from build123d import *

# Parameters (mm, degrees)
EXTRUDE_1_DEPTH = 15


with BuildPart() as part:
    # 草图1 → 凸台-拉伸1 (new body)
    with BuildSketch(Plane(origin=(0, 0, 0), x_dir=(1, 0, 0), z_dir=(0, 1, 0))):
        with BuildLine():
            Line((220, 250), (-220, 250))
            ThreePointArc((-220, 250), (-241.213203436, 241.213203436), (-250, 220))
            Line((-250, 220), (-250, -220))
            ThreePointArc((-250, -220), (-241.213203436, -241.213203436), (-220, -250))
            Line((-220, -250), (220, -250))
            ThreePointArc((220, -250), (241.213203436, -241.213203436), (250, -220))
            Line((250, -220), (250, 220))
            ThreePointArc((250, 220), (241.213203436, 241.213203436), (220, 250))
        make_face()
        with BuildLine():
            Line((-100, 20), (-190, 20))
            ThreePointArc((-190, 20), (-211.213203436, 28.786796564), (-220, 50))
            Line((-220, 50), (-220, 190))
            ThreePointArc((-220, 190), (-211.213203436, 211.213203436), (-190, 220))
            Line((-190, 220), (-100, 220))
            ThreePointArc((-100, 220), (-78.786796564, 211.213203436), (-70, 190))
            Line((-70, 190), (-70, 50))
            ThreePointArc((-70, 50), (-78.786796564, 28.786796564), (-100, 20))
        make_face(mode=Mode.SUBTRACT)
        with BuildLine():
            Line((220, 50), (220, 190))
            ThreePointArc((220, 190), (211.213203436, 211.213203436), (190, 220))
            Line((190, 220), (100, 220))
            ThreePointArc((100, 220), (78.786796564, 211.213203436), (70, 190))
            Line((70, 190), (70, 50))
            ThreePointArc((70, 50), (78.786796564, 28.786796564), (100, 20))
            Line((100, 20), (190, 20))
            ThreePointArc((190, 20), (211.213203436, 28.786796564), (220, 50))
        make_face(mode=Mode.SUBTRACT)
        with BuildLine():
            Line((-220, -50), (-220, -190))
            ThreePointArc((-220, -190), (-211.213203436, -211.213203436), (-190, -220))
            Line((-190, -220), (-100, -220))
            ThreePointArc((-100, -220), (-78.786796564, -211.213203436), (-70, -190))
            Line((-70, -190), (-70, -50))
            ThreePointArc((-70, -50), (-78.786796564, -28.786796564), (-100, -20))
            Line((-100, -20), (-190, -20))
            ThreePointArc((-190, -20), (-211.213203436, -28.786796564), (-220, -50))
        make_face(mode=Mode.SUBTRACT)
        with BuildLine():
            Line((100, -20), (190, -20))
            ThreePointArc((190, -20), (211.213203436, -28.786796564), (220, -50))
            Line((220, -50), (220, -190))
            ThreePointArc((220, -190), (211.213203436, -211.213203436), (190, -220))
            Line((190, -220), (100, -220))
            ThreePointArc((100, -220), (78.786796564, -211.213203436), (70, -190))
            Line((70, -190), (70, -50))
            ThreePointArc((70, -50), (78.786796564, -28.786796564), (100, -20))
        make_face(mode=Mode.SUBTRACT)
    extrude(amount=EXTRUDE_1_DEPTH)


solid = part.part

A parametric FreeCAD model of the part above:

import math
import FreeCAD as App
import Part
import Sketcher
from FreeCAD import Vector

doc = App.newDocument("Part")
params = doc.addObject("Spreadsheet::Sheet", "Params")
for row, (alias, value) in enumerate([
    ("sketch1_radius", "30 mm"),
    ("sketch1_width", "440 mm"),
    ("sketch1_width2", "90 mm"),
    ("sketch1_height", "140 mm"),
    ("pad1_length", "15 mm"),
], start=1):
    params.set(f"A{row}", alias)
    params.set(f"B{row}", "=" + value)
    params.setAlias(f"B{row}", alias)

body = doc.addObject("PartDesign::Body", "Body")

# Sketch on XZ plane
sketch1 = doc.addObject("Sketcher::SketchObject", "Sketch")
body.addObject(sketch1)
sketch1.AttachmentSupport = (doc.XZ_Plane, [""])
sketch1.MapMode = "FlatFace"
sketch1.addGeometry([
    Part.LineSegment(Vector(220, -250, 0), Vector(-220, -250, 0)),  # 0
    Part.ArcOfCircle(Part.Circle(Vector(-220, -220, 0), Vector(0, 0, 1), 30), math.radians(180), math.radians(270)),  # 1
    Part.LineSegment(Vector(-250, -220, 0), Vector(-250, 220, 0)),  # 2
    Part.ArcOfCircle(Part.Circle(Vector(-220, 220, 0), Vector(0, 0, 1), 30), math.radians(90), math.radians(180)),  # 3
    Part.LineSegment(Vector(-220, 250, 0), Vector(220, 250, 0)),  # 4
    Part.ArcOfCircle(Part.Circle(Vector(220, 220, 0), Vector(0, 0, 1), 30), math.radians(0), math.radians(90)),  # 5
    Part.LineSegment(Vector(250, 220, 0), Vector(250, -220, 0)),  # 6
    Part.ArcOfCircle(Part.Circle(Vector(220, -220, 0), Vector(0, 0, 1), 30), math.radians(-90), math.radians(0)),  # 7
    Part.LineSegment(Vector(-220, 190, 0), Vector(-220, 50, 0)),  # 8
    Part.ArcOfCircle(Part.Circle(Vector(-190, 50, 0), Vector(0, 0, 1), 30), math.radians(180), math.radians(270)),  # 9
    Part.LineSegment(Vector(-190, 20, 0), Vector(-100, 20, 0)),  # 10
    Part.ArcOfCircle(Part.Circle(Vector(-100, 50, 0), Vector(0, 0, 1), 30), math.radians(-90), math.radians(0)),  # 11
    Part.LineSegment(Vector(-70, 50, 0), Vector(-70, 190, 0)),  # 12
    Part.ArcOfCircle(Part.Circle(Vector(-100, 190, 0), Vector(0, 0, 1), 30), math.radians(0), math.radians(90)),  # 13
    Part.LineSegment(Vector(-100, 220, 0), Vector(-190, 220, 0)),  # 14
    Part.ArcOfCircle(Part.Circle(Vector(-190, 190, 0), Vector(0, 0, 1), 30), math.radians(90), math.radians(180)),  # 15
    Part.ArcOfCircle(Part.Circle(Vector(100, 50, 0), Vector(0, 0, 1), 30), math.radians(180), math.radians(270)),  # 16
    Part.LineSegment(Vector(100, 20, 0), Vector(190, 20, 0)),  # 17
    Part.ArcOfCircle(Part.Circle(Vector(190, 50, 0), Vector(0, 0, 1), 30), math.radians(-90), math.radians(0)),  # 18
    Part.LineSegment(Vector(220, 50, 0), Vector(220, 190, 0)),  # 19
    Part.ArcOfCircle(Part.Circle(Vector(190, 190, 0), Vector(0, 0, 1), 30), math.radians(0), math.radians(90)),  # 20
    Part.LineSegment(Vector(190, 220, 0), Vector(100, 220, 0)),  # 21
    Part.ArcOfCircle(Part.Circle(Vector(100, 190, 0), Vector(0, 0, 1), 30), math.radians(90), math.radians(180)),  # 22
    Part.LineSegment(Vector(70, 190, 0), Vector(70, 50, 0)),  # 23
    Part.ArcOfCircle(Part.Circle(Vector(-100, -50, 0), Vector(0, 0, 1), 30), math.radians(0), math.radians(90)),  # 24
    Part.LineSegment(Vector(-100, -20, 0), Vector(-190, -20, 0)),  # 25
    Part.ArcOfCircle(Part.Circle(Vector(-190, -50, 0), Vector(0, 0, 1), 30), math.radians(90), math.radians(180)),  # 26
    Part.LineSegment(Vector(-220, -50, 0), Vector(-220, -190, 0)),  # 27
    Part.ArcOfCircle(Part.Circle(Vector(-190, -190, 0), Vector(0, 0, 1), 30), math.radians(180), math.radians(270)),  # 28
    Part.LineSegment(Vector(-190, -220, 0), Vector(-100, -220, 0)),  # 29
    Part.ArcOfCircle(Part.Circle(Vector(-100, -190, 0), Vector(0, 0, 1), 30), math.radians(-90), math.radians(0)),  # 30
    Part.LineSegment(Vector(-70, -190, 0), Vector(-70, -50, 0)),  # 31
    Part.LineSegment(Vector(220, -190, 0), Vector(220, -50, 0)),  # 32
    Part.ArcOfCircle(Part.Circle(Vector(190, -50, 0), Vector(0, 0, 1), 30), math.radians(0), math.radians(90)),  # 33
    Part.LineSegment(Vector(190, -20, 0), Vector(100, -20, 0)),  # 34
    Part.ArcOfCircle(Part.Circle(Vector(100, -50, 0), Vector(0, 0, 1), 30), math.radians(90), math.radians(180)),  # 35
    Part.LineSegment(Vector(70, -50, 0), Vector(70, -190, 0)),  # 36
    Part.ArcOfCircle(Part.Circle(Vector(100, -190, 0), Vector(0, 0, 1), 30), math.radians(180), math.radians(270)),  # 37
    Part.LineSegment(Vector(100, -220, 0), Vector(190, -220, 0)),  # 38
    Part.ArcOfCircle(Part.Circle(Vector(190, -190, 0), Vector(0, 0, 1), 30), math.radians(-90), math.radians(0)),  # 39
], False)
sketch1.addConstraint([
    Sketcher.Constraint("Tangent", 0, 2, 1, 2),
    Sketcher.Constraint("Tangent", 1, 1, 2, 1),
    Sketcher.Constraint("Tangent", 2, 2, 3, 2),
    Sketcher.Constraint("Tangent", 3, 1, 4, 1),
    Sketcher.Constraint("Tangent", 4, 2, 5, 2),
    Sketcher.Constraint("Tangent", 5, 1, 6, 1),
    Sketcher.Constraint("Tangent", 6, 2, 7, 2),
    Sketcher.Constraint("Tangent", 7, 1, 0, 1),
    Sketcher.Constraint("Tangent", 8, 2, 9, 1),
    Sketcher.Constraint("Tangent", 9, 2, 10, 1),
    Sketcher.Constraint("Tangent", 10, 2, 11, 1),
    Sketcher.Constraint("Tangent", 11, 2, 12, 1),
    Sketcher.Constraint("Tangent", 12, 2, 13, 1),
    Sketcher.Constraint("Tangent", 13, 2, 14, 1),
    Sketcher.Constraint("Tangent", 14, 2, 15, 1),
    Sketcher.Constraint("Tangent", 15, 2, 8, 1),
    Sketcher.Constraint("Tangent", 16, 2, 17, 1),
    Sketcher.Constraint("Tangent", 17, 2, 18, 1),
    Sketcher.Constraint("Tangent", 18, 2, 19, 1),
    Sketcher.Constraint("Tangent", 19, 2, 20, 1),
    Sketcher.Constraint("Tangent", 20, 2, 21, 1),
    Sketcher.Constraint("Tangent", 21, 2, 22, 1),
    Sketcher.Constraint("Tangent", 22, 2, 23, 1),
    Sketcher.Constraint("Tangent", 23, 2, 16, 1),
    Sketcher.Constraint("Tangent", 24, 2, 25, 1),
    Sketcher.Constraint("Tangent", 25, 2, 26, 1),
    Sketcher.Constraint("Tangent", 26, 2, 27, 1),
    Sketcher.Constraint("Tangent", 27, 2, 28, 1),
    Sketcher.Constraint("Tangent", 28, 2, 29, 1),
    Sketcher.Constraint("Tangent", 29, 2, 30, 1),
    Sketcher.Constraint("Tangent", 30, 2, 31, 1),
    Sketcher.Constraint("Tangent", 31, 2, 24, 1),
    Sketcher.Constraint("Tangent", 32, 2, 33, 1),
    Sketcher.Constraint("Tangent", 33, 2, 34, 1),
    Sketcher.Constraint("Tangent", 34, 2, 35, 1),
    Sketcher.Constraint("Tangent", 35, 2, 36, 1),
    Sketcher.Constraint("Tangent", 36, 2, 37, 1),
    Sketcher.Constraint("Tangent", 37, 2, 38, 1),
    Sketcher.Constraint("Tangent", 38, 2, 39, 1),
    Sketcher.Constraint("Tangent", 39, 2, 32, 1),
    Sketcher.Constraint("Horizontal", 0),
    Sketcher.Constraint("Vertical", 2),
    Sketcher.Constraint("Horizontal", 4),
    Sketcher.Constraint("Vertical", 6),
    Sketcher.Constraint("Vertical", 8),
    Sketcher.Constraint("Horizontal", 10),
    Sketcher.Constraint("Vertical", 12),
    Sketcher.Constraint("Horizontal", 14),
    Sketcher.Constraint("Horizontal", 17),
    Sketcher.Constraint("Vertical", 19),
    Sketcher.Constraint("Horizontal", 21),
    Sketcher.Constraint("Vertical", 23),
    Sketcher.Constraint("Horizontal", 25),
    Sketcher.Constraint("Vertical", 27),
    Sketcher.Constraint("Horizontal", 29),
    Sketcher.Constraint("Vertical", 31),
    Sketcher.Constraint("Vertical", 32),
    Sketcher.Constraint("Horizontal", 34),
    Sketcher.Constraint("Vertical", 36),
    Sketcher.Constraint("Horizontal", 38),
    Sketcher.Constraint("Equal", 1, 3),
    Sketcher.Constraint("Equal", 3, 5),
    Sketcher.Constraint("Equal", 5, 7),
    Sketcher.Constraint("Equal", 7, 9),
    Sketcher.Constraint("Equal", 9, 11),
    Sketcher.Constraint("Equal", 11, 13),
    Sketcher.Constraint("Equal", 13, 15),
    Sketcher.Constraint("Equal", 15, 16),
    Sketcher.Constraint("Equal", 16, 18),
    Sketcher.Constraint("Equal", 18, 20),
    Sketcher.Constraint("Equal", 20, 22),
    Sketcher.Constraint("Equal", 22, 24),
    Sketcher.Constraint("Equal", 24, 26),
    Sketcher.Constraint("Equal", 26, 28),
    Sketcher.Constraint("Equal", 28, 30),
    Sketcher.Constraint("Equal", 30, 33),
    Sketcher.Constraint("Equal", 33, 35),
    Sketcher.Constraint("Equal", 35, 37),
    Sketcher.Constraint("Equal", 37, 39),
    Sketcher.Constraint("Symmetric", 1, 3, 5, 3, -1, 1),
    Sketcher.Constraint("Symmetric", 16, 3, 24, 3, -1, 1),
    Sketcher.Constraint("Symmetric", 20, 3, 28, 3, -1, 1),
    Sketcher.Constraint("Symmetric", 9, 3, 33, 3, -1, 1),
    Sketcher.Constraint("Symmetric", 13, 3, 37, 3, -1, 1),
    Sketcher.Constraint("Symmetric", 11, 3, 16, 3, -2),
    Sketcher.Constraint("Symmetric", 15, 3, 20, 3, -2),
    Sketcher.Constraint("Horizontal", 5, 1, 13, 2),
    Sketcher.Constraint("Vertical", 3, 1, 8, 2),
    Sketcher.Constraint("Equal", 4, 2),
    Sketcher.Constraint("Radius", 1, 30.0),
    Sketcher.Constraint("DistanceX", 0, 2, 0, 1, 440.0),
    Sketcher.Constraint("DistanceX", 10, 1, 10, 2, 90.0),
    Sketcher.Constraint("DistanceY", 8, 2, 8, 1, 140.0),
])
sketch1.setExpression("Constraints[89]", "Params.sketch1_radius")
sketch1.setExpression("Constraints[90]", "Params.sketch1_width")
sketch1.setExpression("Constraints[91]", "Params.sketch1_width2")
sketch1.setExpression("Constraints[92]", "Params.sketch1_height")
pad1 = doc.addObject("PartDesign::Pad", "Pad")
body.addObject(pad1)
pad1.Profile = sketch1
pad1.setExpression("Length", "Params.pad1_length")
pad1.Reversed = True

doc.recompute()
